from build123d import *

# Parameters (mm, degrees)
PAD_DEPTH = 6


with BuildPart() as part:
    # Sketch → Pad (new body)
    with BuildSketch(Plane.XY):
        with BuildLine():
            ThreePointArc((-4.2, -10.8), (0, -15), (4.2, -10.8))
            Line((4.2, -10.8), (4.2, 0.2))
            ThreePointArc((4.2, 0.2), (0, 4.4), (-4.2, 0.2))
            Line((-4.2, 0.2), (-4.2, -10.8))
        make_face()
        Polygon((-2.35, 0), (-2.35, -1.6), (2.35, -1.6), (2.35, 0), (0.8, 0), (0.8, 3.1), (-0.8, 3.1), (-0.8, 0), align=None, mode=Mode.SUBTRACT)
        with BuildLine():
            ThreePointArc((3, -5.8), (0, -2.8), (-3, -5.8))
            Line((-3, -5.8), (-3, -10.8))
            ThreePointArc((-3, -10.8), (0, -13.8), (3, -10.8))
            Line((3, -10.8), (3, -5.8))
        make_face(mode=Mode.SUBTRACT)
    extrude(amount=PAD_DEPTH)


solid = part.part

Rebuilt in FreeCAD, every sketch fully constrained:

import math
import FreeCAD as App
import Part
import Sketcher
from FreeCAD import Vector


def add_polygon(sketch, points):
    """Adds a closed chain of lines whose ends are joined by coincident constraints."""
    first, n = sketch.GeometryCount, len(points)
    for a, b in zip(points, points[1:] + points[:1]):
        sketch.addGeometry(Part.LineSegment(App.Vector(*a, 0), App.Vector(*b, 0)), False)
    for i in range(n):
        sketch.addConstraint(Sketcher.Constraint("Coincident", first + i, 2, first + (i + 1) % n, 1))

doc = App.newDocument("Part")
body = doc.addObject("PartDesign::Body", "Body")

sketch1 = doc.addObject("Sketcher::SketchObject", "Sketch")
body.addObject(sketch1)
sketch1.AttachmentSupport = (doc.XY_Plane, [""])
sketch1.MapMode = "FlatFace"
sketch1.addGeometry(Part.ArcOfCircle(Part.Circle(Vector(0, -10.8, 0), Vector(0, 0, 1), 4.2), math.radians(180), math.radians(360)), False)
sketch1.addGeometry(Part.LineSegment(Vector(4.2, -10.8, 0), Vector(4.2, 0.2, 0)), False)
sketch1.addGeometry(Part.ArcOfCircle(Part.Circle(Vector(0, 0.2, 0), Vector(0, 0, 1), 4.2), math.radians(0), math.radians(180)), False)
sketch1.addGeometry(Part.LineSegment(Vector(-4.2, 0.2, 0), Vector(-4.2, -10.8, 0)), False)
sketch1.addGeometry(Part.ArcOfCircle(Part.Circle(Vector(0, -5.8, 0), Vector(0, 0, 1), 3), math.radians(0), math.radians(180)), False)
sketch1.addGeometry(Part.LineSegment(Vector(3, -5.8, 0), Vector(3, -10.8, 0)), False)
sketch1.addGeometry(Part.ArcOfCircle(Part.Circle(Vector(0, -10.8, 0), Vector(0, 0, 1), 3), math.radians(180), math.radians(360)), False)
sketch1.addGeometry(Part.LineSegment(Vector(-3, -10.8, 0), Vector(-3, -5.8, 0)), False)
add_polygon(sketch1, [(-2.35, -1.6), (-2.35, 0), (-0.8, 0), (-0.8, 3.1), (0.8, 3.1), (0.8, 0), (2.35, 0), (2.35, -1.6)])
sketch1.addConstraint([
    Sketcher.Constraint("Tangent", 0, 2, 1, 1),
    Sketcher.Constraint("Tangent", 1, 2, 2, 1),
    Sketcher.Constraint("Tangent", 2, 2, 3, 1),
    Sketcher.Constraint("Tangent", 3, 2, 0, 1),
    Sketcher.Constraint("Tangent", 4, 1, 5, 1),
    Sketcher.Constraint("Tangent", 5, 2, 6, 2),
    Sketcher.Constraint("Tangent", 6, 1, 7, 1),
    Sketcher.Constraint("Tangent", 7, 2, 4, 2),
    Sketcher.Constraint("Vertical", 1),
    Sketcher.Constraint("Vertical", 3),
    Sketcher.Constraint("Vertical", 5),
    Sketcher.Constraint("Vertical", 7),
    Sketcher.Constraint("Vertical", 8),
    Sketcher.Constraint("Horizontal", 9),
    Sketcher.Constraint("Vertical", 10),
    Sketcher.Constraint("Horizontal", 11),
    Sketcher.Constraint("Vertical", 12),
    Sketcher.Constraint("Horizontal", 13),
    Sketcher.Constraint("Vertical", 14),
    Sketcher.Constraint("Horizontal", 15),
    Sketcher.Constraint("Coincident", 6, 3, 0, 3),
    Sketcher.Constraint("Symmetric", 9, 2, 12, 2, -1, 1),
    Sketcher.Constraint("Symmetric", 8, 2, 13, 2, -2),
    Sketcher.Constraint("PointOnObject", 0, 3, -2),
    Sketcher.Constraint("Equal", 11, 8),
    Sketcher.Constraint("Radius", 4, 3.0),
    Sketcher.Constraint("Radius", 0, 4.2),
    Sketcher.Constraint("DistanceY", 1, 1, 1, 2, 11.0),
    Sketcher.Constraint("DistanceY", 5, 2, 5, 1, 5.0),
    Sketcher.Constraint("DistanceX", 11, 1, 11, 2, 1.6),
    Sketcher.Constraint("DistanceX", 15, 2, 15, 1, 4.7),
    Sketcher.Constraint("DistanceY", 10, 1, 10, 2, 3.1),
    Sketcher.Constraint("DistanceY", 0, 3, -1, 1, 10.8),
])
pad1 = doc.addObject("PartDesign::Pad", "Pad")
body.addObject(pad1)
pad1.Profile = sketch1
pad1.Length = 6

doc.recompute()
